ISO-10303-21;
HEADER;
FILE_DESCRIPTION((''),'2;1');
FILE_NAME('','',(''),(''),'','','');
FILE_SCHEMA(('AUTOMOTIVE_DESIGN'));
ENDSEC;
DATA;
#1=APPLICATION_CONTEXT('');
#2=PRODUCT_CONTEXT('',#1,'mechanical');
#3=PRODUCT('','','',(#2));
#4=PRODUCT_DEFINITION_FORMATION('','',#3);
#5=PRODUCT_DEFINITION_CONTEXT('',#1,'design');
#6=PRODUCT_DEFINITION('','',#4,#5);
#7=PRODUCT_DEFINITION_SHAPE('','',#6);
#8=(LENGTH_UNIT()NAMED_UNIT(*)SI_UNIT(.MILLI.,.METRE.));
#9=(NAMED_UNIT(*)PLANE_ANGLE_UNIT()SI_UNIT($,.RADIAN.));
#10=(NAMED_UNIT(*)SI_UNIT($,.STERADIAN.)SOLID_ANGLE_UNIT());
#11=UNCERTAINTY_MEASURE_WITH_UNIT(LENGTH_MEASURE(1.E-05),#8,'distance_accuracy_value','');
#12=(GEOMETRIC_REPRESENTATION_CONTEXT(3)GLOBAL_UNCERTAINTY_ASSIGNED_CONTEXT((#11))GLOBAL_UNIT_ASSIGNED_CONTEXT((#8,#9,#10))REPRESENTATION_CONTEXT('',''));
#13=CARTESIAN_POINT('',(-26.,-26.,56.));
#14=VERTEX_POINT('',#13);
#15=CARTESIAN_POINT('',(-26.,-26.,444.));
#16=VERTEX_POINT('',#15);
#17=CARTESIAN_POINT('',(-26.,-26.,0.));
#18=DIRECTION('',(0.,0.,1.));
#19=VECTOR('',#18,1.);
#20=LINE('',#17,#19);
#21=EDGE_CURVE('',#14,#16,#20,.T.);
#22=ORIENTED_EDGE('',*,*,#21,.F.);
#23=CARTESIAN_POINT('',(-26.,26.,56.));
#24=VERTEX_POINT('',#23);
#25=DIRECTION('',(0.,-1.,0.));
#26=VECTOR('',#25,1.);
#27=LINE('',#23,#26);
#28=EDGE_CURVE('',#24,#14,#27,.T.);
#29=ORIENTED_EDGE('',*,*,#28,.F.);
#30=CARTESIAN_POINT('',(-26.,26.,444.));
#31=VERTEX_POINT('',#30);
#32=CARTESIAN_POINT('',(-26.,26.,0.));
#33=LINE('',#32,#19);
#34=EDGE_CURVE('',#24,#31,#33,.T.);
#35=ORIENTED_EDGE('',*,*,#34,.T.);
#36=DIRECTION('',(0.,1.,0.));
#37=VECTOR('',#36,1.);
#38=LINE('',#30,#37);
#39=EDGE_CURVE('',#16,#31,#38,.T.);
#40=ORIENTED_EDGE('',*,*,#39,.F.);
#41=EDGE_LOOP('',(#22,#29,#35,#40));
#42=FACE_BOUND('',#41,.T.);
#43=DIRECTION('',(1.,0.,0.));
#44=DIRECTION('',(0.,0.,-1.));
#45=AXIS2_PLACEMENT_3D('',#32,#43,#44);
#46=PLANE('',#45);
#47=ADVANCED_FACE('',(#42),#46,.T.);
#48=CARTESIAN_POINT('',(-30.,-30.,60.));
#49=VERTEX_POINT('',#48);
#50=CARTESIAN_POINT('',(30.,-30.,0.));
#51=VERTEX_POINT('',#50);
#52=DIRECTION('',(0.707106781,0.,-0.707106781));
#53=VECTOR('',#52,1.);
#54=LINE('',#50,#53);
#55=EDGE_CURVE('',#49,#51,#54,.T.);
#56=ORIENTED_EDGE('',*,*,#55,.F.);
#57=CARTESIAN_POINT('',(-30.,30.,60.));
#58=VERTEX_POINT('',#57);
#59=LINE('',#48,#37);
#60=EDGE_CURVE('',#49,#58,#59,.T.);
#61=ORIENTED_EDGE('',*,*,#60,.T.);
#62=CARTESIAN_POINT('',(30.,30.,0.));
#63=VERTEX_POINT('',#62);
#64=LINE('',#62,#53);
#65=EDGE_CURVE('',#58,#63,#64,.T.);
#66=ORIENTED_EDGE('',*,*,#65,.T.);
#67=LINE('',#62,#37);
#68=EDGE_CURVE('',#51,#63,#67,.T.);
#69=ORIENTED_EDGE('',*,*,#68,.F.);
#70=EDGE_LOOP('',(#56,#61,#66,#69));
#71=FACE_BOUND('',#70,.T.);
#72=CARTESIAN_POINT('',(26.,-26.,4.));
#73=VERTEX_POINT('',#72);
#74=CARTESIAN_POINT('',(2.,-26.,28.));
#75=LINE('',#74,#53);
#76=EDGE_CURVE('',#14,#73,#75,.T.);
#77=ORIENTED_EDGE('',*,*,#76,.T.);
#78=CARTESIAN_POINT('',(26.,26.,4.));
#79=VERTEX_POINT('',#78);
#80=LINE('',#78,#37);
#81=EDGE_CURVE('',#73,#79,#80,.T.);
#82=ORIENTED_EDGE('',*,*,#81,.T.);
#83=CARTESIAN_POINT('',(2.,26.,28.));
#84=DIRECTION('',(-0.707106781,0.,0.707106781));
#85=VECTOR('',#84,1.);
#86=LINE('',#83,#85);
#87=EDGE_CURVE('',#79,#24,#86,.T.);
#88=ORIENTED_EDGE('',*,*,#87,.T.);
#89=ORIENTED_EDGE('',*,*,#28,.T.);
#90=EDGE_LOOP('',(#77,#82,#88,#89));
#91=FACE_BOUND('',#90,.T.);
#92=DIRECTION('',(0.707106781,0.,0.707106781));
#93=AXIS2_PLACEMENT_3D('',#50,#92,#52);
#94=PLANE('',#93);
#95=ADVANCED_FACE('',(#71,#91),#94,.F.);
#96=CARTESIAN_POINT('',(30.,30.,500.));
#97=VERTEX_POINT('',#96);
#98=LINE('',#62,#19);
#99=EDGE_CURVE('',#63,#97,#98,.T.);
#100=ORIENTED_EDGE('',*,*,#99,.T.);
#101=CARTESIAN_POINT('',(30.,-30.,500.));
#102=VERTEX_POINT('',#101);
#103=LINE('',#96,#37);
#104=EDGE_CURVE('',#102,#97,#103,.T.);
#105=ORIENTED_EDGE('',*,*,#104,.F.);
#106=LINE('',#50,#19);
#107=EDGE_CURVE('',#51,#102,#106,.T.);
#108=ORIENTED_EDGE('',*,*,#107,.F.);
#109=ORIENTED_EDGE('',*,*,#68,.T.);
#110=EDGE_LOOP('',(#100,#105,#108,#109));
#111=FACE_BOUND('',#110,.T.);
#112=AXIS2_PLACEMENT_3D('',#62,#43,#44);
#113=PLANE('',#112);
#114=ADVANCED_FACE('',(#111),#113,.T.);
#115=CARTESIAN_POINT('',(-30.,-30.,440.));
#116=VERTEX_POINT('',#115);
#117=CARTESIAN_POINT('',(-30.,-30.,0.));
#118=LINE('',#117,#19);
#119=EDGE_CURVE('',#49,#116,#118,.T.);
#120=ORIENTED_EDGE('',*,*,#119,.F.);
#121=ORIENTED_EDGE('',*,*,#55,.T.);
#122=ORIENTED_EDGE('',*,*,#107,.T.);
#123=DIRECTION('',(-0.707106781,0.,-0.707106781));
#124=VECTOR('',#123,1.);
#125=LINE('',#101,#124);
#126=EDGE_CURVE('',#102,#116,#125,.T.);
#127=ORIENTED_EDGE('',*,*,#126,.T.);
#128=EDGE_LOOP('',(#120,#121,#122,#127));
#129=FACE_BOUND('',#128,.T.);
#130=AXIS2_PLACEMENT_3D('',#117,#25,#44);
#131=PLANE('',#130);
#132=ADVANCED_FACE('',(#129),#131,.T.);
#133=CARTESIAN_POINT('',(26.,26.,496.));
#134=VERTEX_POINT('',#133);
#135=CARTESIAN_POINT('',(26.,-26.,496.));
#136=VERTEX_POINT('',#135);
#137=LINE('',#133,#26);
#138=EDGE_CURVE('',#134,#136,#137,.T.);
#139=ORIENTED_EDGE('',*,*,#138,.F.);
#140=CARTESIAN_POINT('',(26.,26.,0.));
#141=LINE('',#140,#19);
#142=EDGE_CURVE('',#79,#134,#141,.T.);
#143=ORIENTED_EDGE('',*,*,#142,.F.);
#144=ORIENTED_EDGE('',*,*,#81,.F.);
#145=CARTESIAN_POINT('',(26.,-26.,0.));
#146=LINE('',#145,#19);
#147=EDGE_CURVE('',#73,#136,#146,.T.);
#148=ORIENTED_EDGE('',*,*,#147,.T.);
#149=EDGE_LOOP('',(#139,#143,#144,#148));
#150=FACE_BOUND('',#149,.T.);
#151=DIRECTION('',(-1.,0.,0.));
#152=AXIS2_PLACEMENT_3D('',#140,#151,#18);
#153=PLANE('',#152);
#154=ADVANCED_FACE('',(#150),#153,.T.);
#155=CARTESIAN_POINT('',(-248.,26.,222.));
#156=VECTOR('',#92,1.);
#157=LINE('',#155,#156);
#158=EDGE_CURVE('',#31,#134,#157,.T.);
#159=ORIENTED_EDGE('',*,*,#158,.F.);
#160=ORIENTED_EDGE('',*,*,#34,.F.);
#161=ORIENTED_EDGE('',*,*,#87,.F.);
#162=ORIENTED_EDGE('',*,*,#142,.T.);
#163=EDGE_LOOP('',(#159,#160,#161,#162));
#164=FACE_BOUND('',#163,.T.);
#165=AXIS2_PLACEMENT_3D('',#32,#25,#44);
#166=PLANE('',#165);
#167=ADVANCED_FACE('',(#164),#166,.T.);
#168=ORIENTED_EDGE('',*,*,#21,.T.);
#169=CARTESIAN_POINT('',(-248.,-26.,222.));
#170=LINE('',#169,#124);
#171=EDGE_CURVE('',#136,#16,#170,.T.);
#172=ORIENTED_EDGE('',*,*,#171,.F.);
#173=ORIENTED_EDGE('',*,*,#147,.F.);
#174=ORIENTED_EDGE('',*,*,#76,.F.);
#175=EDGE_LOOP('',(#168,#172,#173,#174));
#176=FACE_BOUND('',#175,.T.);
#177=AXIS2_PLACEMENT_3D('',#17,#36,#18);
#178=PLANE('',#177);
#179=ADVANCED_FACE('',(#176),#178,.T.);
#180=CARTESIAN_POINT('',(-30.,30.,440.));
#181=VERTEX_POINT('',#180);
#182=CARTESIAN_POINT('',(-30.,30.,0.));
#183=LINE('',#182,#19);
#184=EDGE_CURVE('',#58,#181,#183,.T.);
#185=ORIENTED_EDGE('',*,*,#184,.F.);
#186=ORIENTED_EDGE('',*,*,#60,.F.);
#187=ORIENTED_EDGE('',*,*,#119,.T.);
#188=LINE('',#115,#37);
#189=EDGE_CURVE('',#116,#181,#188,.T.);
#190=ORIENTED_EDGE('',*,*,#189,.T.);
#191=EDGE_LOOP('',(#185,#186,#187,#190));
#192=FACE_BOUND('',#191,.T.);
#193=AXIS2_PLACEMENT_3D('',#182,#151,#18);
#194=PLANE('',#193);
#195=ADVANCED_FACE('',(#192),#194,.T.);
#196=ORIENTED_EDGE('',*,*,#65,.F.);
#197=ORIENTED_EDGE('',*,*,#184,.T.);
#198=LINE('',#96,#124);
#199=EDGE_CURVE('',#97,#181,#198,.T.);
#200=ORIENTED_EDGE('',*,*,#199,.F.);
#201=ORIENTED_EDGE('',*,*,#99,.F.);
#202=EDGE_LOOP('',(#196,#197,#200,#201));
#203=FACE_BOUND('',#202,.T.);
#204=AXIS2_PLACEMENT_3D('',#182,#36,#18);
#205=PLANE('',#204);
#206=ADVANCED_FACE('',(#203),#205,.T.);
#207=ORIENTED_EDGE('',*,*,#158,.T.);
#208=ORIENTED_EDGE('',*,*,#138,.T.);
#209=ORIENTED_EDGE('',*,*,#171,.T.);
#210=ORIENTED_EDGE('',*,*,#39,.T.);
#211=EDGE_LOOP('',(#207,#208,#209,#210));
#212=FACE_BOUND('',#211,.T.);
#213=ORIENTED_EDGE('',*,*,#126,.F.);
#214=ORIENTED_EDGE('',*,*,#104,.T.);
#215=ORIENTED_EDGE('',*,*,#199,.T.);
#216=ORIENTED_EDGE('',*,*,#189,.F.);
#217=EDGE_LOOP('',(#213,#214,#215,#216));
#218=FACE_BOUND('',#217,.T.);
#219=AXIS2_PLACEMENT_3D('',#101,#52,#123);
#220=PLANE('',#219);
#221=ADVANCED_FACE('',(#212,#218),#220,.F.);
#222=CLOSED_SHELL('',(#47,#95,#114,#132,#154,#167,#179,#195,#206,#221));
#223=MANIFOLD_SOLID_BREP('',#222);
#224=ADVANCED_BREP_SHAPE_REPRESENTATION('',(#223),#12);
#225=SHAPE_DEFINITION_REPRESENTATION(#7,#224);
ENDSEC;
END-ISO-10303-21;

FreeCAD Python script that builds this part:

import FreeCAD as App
import Part
import Sketcher
from FreeCAD import Vector

doc = App.newDocument("Part")
body = doc.addObject("PartDesign::Body", "Body")

sketch1 = body.newObject("Sketcher::SketchObject", "Sketch")
sketch1.AttachmentSupport = (doc.getObject("XY_Plane"), [""])
sketch1.MapMode = "FlatFace"
sketch1.addGeometry(Part.LineSegment(Vector(-30, 30, 0), Vector(-30, -30, 0)), False)
sketch1.addGeometry(Part.LineSegment(Vector(-30, -30, 0), Vector(30, -30, 0)), False)
sketch1.addGeometry(Part.LineSegment(Vector(30, -30, 0), Vector(30, 30, 0)), False)
sketch1.addGeometry(Part.LineSegment(Vector(30, 30, 0), Vector(-30, 30, 0)), False)
sketch1.addGeometry(Part.LineSegment(Vector(26, -26, 0), Vector(-26, -26, 0)), False)
sketch1.addGeometry(Part.LineSegment(Vector(-26, -26, 0), Vector(-26, 26, 0)), False)
sketch1.addGeometry(Part.LineSegment(Vector(-26, 26, 0), Vector(26, 26, 0)), False)
sketch1.addGeometry(Part.LineSegment(Vector(26, 26, 0), Vector(26, -26, 0)), False)
sketch1.addConstraint(Sketcher.Constraint("Coincident", 0, 2, 1, 1))
sketch1.addConstraint(Sketcher.Constraint("Coincident", 1, 2, 2, 1))
sketch1.addConstraint(Sketcher.Constraint("Coincident", 2, 2, 3, 1))
sketch1.addConstraint(Sketcher.Constraint("Coincident", 3, 2, 0, 1))
sketch1.addConstraint(Sketcher.Constraint("Coincident", 4, 2, 5, 1))
sketch1.addConstraint(Sketcher.Constraint("Coincident", 5, 2, 6, 1))
sketch1.addConstraint(Sketcher.Constraint("Coincident", 6, 2, 7, 1))
sketch1.addConstraint(Sketcher.Constraint("Coincident", 7, 2, 4, 1))
sketch1.addConstraint(Sketcher.Constraint("Vertical", 0))
sketch1.addConstraint(Sketcher.Constraint("Horizontal", 1))
sketch1.addConstraint(Sketcher.Constraint("Vertical", 2))
sketch1.addConstraint(Sketcher.Constraint("Horizontal", 3))
sketch1.addConstraint(Sketcher.Constraint("Horizontal", 4))
sketch1.addConstraint(Sketcher.Constraint("Vertical", 5))
sketch1.addConstraint(Sketcher.Constraint("Horizontal", 6))
sketch1.addConstraint(Sketcher.Constraint("Vertical", 7))
sketch1.addConstraint(Sketcher.Constraint("Symmetric", 0, 2, 2, 2, -1, 1))
sketch1.addConstraint(Sketcher.Constraint("Symmetric", 4, 2, 6, 2, -1, 1))
sketch1.addConstraint(Sketcher.Constraint("Equal", 3, 0))
sketch1.addConstraint(Sketcher.Constraint("Equal", 6, 5))
sketch1.addConstraint(Sketcher.Constraint("DistanceX", 1, 1, 1, 2, 60.0))
sketch1.addConstraint(Sketcher.Constraint("DistanceX", 4, 2, 4, 1, 52.0))

sketch2 = body.newObject("Sketcher::SketchObject", "Sketch001")
sketch2.AttachmentSupport = (doc.getObject("XZ_Plane"), [""])
sketch2.MapMode = "FlatFace"
sketch2.addGeometry(Part.BSplineCurve([Vector(0, 0, 0), Vector(0, 500, 0)], [2, 2], [0, 1], False, 1, [1, 1], False), False)
sketch2.addConstraint(Sketcher.Constraint("Block", 0))
doc.recompute()

additivepipe = body.newObject("PartDesign::AdditivePipe", "AdditivePipe")
additivepipe.Profile = sketch1
additivepipe.Spine = (sketch2, ["Edge1"])

sketch3 = body.newObject("Sketcher::SketchObject", "Sketch002")
sketch3.AttachmentSupport = (doc.getObject("XZ_Plane"), [""])
sketch3.MapMode = "FlatFace"
sketch3.AttachmentOffset = App.Placement(Vector(0, 0, -30), App.Rotation())
sketch3.addGeometry(Part.LineSegment(Vector(-30, 60, 0), Vector(30, 0, 0)), False)
sketch3.addGeometry(Part.LineSegment(Vector(30, 0, 0), Vector(-30, 0, 0)), False)
sketch3.addGeometry(Part.LineSegment(Vector(-30, 0, 0), Vector(-30, 60, 0)), False)
sketch3.addGeometry(Part.LineSegment(Vector(30, 500, 0), Vector(-30, 440, 0)), False)
sketch3.addGeometry(Part.LineSegment(Vector(-30, 440, 0), Vector(-30, 500, 0)), False)
sketch3.addGeometry(Part.LineSegment(Vector(-30, 500, 0), Vector(30, 500, 0)), False)
sketch3.addConstraint(Sketcher.Constraint("Coincident", 0, 2, 1, 1))
sketch3.addConstraint(Sketcher.Constraint("Coincident", 1, 2, 2, 1))
sketch3.addConstraint(Sketcher.Constraint("Coincident", 2, 2, 0, 1))
sketch3.addConstraint(Sketcher.Constraint("Coincident", 3, 2, 4, 1))
sketch3.addConstraint(Sketcher.Constraint("Coincident", 4, 2, 5, 1))
sketch3.addConstraint(Sketcher.Constraint("Coincident", 5, 2, 3, 1))
sketch3.addConstraint(Sketcher.Constraint("Horizontal", 1))
sketch3.addConstraint(Sketcher.Constraint("Vertical", 2))
sketch3.addConstraint(Sketcher.Constraint("Vertical", 4))
sketch3.addConstraint(Sketcher.Constraint("Horizontal", 5))
sketch3.addConstraint(Sketcher.Constraint("Symmetric", 0, 2, 1, 2, -1, 1))
sketch3.addConstraint(Sketcher.Constraint("Perpendicular", 0, 3))
sketch3.addConstraint(Sketcher.Constraint("Vertical", 2, 2, 3, 2))
sketch3.addConstraint(Sketcher.Constraint("Vertical", 0, 2, 5, 2))
sketch3.addConstraint(Sketcher.Constraint("Equal", 5, 2))
sketch3.addConstraint(Sketcher.Constraint("DistanceX", 1, 2, 1, 1, 60.0))
sketch3.addConstraint(Sketcher.Constraint("DistanceY", -1, 1, 3, 2, 440.0))
pocket1 = body.newObject("PartDesign::Pocket", "Pocket")
pocket1.Profile = sketch3
pocket1.Type = "ThroughAll"
pocket1.Reversed = True

doc.recompute()
